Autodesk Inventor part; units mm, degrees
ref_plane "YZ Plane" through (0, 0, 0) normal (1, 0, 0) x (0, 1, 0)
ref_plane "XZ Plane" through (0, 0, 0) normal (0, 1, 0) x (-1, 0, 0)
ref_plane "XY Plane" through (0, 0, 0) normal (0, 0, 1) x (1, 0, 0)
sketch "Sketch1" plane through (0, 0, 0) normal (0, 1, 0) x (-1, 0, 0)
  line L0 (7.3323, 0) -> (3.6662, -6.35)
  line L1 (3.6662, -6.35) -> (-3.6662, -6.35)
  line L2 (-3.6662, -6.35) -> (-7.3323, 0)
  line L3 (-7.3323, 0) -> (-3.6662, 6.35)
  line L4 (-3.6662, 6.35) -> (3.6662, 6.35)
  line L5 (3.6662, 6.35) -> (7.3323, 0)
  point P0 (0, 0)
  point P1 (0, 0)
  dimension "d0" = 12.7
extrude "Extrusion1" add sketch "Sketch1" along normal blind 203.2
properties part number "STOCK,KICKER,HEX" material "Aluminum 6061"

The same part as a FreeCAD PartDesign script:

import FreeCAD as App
import Part
import Sketcher
Q = App.Units.Quantity

doc = App.newDocument("Part")
body = doc.addObject("PartDesign::Body", "Body")

sketch1 = body.newObject("Sketcher::SketchObject", "Sketch")
sketch1.AttachmentSupport = (doc.getObject("XZ_Plane"), [""])
sketch1.MapMode = "FlatFace"
sketch1.addGeometry(Part.LineSegment(App.Vector(-4, -6, 0), App.Vector(-7, 0, 0)), False)
sketch1.addGeometry(Part.LineSegment(App.Vector(-7, 0, 0), App.Vector(-4, 6, 0)), False)
sketch1.addGeometry(Part.LineSegment(App.Vector(-4, 6, 0), App.Vector(4, 6, 0)), False)
sketch1.addGeometry(Part.LineSegment(App.Vector(4, 6, 0), App.Vector(7, 0, 0)), False)
sketch1.addGeometry(Part.LineSegment(App.Vector(7, 0, 0), App.Vector(4, -6, 0)), False)
sketch1.addGeometry(Part.LineSegment(App.Vector(4, -6, 0), App.Vector(-4, -6, 0)), False)
sketch1.addConstraint(Sketcher.Constraint("Coincident", 0, 2, 1, 1))
sketch1.addConstraint(Sketcher.Constraint("Coincident", 1, 2, 2, 1))
sketch1.addConstraint(Sketcher.Constraint("Coincident", 2, 2, 3, 1))
sketch1.addConstraint(Sketcher.Constraint("Coincident", 3, 2, 4, 1))
sketch1.addConstraint(Sketcher.Constraint("Coincident", 4, 2, 5, 1))
sketch1.addConstraint(Sketcher.Constraint("Coincident", 5, 2, 0, 1))
sketch1.addConstraint(Sketcher.Constraint("Horizontal", 2))
sketch1.addConstraint(Sketcher.Constraint("Horizontal", 5))
sketch1.addConstraint(Sketcher.Constraint("Symmetric", 0, 2, 3, 2, -1, 1))
sketch1.addConstraint(Sketcher.Constraint("Symmetric", 1, 2, 4, 2, -1, 1))
sketch1.addConstraint(Sketcher.Constraint("PointOnObject", 0, 2, -1))
sketch1.addConstraint(Sketcher.Constraint("Parallel", 0, 3))
sketch1.addConstraint(Sketcher.Constraint("Vertical", 2, 2, 4, 2))
sketch1.addConstraint(Sketcher.Constraint("DistanceY", 4, 2, 2, 2, Q("0.5 in")))
sketch1.addConstraint(Sketcher.Constraint("Angle", 0, Q("119.9995 deg")))
sketch1.addConstraint(Sketcher.Constraint("DistanceX", 0, 2, 2, 2, Q("0.433 in")))
pad1 = body.newObject("PartDesign::Pad", "Pad")
pad1.Profile = sketch1
pad1.Length = Q("8 in")
pad1.Reversed = True

doc.recompute()
